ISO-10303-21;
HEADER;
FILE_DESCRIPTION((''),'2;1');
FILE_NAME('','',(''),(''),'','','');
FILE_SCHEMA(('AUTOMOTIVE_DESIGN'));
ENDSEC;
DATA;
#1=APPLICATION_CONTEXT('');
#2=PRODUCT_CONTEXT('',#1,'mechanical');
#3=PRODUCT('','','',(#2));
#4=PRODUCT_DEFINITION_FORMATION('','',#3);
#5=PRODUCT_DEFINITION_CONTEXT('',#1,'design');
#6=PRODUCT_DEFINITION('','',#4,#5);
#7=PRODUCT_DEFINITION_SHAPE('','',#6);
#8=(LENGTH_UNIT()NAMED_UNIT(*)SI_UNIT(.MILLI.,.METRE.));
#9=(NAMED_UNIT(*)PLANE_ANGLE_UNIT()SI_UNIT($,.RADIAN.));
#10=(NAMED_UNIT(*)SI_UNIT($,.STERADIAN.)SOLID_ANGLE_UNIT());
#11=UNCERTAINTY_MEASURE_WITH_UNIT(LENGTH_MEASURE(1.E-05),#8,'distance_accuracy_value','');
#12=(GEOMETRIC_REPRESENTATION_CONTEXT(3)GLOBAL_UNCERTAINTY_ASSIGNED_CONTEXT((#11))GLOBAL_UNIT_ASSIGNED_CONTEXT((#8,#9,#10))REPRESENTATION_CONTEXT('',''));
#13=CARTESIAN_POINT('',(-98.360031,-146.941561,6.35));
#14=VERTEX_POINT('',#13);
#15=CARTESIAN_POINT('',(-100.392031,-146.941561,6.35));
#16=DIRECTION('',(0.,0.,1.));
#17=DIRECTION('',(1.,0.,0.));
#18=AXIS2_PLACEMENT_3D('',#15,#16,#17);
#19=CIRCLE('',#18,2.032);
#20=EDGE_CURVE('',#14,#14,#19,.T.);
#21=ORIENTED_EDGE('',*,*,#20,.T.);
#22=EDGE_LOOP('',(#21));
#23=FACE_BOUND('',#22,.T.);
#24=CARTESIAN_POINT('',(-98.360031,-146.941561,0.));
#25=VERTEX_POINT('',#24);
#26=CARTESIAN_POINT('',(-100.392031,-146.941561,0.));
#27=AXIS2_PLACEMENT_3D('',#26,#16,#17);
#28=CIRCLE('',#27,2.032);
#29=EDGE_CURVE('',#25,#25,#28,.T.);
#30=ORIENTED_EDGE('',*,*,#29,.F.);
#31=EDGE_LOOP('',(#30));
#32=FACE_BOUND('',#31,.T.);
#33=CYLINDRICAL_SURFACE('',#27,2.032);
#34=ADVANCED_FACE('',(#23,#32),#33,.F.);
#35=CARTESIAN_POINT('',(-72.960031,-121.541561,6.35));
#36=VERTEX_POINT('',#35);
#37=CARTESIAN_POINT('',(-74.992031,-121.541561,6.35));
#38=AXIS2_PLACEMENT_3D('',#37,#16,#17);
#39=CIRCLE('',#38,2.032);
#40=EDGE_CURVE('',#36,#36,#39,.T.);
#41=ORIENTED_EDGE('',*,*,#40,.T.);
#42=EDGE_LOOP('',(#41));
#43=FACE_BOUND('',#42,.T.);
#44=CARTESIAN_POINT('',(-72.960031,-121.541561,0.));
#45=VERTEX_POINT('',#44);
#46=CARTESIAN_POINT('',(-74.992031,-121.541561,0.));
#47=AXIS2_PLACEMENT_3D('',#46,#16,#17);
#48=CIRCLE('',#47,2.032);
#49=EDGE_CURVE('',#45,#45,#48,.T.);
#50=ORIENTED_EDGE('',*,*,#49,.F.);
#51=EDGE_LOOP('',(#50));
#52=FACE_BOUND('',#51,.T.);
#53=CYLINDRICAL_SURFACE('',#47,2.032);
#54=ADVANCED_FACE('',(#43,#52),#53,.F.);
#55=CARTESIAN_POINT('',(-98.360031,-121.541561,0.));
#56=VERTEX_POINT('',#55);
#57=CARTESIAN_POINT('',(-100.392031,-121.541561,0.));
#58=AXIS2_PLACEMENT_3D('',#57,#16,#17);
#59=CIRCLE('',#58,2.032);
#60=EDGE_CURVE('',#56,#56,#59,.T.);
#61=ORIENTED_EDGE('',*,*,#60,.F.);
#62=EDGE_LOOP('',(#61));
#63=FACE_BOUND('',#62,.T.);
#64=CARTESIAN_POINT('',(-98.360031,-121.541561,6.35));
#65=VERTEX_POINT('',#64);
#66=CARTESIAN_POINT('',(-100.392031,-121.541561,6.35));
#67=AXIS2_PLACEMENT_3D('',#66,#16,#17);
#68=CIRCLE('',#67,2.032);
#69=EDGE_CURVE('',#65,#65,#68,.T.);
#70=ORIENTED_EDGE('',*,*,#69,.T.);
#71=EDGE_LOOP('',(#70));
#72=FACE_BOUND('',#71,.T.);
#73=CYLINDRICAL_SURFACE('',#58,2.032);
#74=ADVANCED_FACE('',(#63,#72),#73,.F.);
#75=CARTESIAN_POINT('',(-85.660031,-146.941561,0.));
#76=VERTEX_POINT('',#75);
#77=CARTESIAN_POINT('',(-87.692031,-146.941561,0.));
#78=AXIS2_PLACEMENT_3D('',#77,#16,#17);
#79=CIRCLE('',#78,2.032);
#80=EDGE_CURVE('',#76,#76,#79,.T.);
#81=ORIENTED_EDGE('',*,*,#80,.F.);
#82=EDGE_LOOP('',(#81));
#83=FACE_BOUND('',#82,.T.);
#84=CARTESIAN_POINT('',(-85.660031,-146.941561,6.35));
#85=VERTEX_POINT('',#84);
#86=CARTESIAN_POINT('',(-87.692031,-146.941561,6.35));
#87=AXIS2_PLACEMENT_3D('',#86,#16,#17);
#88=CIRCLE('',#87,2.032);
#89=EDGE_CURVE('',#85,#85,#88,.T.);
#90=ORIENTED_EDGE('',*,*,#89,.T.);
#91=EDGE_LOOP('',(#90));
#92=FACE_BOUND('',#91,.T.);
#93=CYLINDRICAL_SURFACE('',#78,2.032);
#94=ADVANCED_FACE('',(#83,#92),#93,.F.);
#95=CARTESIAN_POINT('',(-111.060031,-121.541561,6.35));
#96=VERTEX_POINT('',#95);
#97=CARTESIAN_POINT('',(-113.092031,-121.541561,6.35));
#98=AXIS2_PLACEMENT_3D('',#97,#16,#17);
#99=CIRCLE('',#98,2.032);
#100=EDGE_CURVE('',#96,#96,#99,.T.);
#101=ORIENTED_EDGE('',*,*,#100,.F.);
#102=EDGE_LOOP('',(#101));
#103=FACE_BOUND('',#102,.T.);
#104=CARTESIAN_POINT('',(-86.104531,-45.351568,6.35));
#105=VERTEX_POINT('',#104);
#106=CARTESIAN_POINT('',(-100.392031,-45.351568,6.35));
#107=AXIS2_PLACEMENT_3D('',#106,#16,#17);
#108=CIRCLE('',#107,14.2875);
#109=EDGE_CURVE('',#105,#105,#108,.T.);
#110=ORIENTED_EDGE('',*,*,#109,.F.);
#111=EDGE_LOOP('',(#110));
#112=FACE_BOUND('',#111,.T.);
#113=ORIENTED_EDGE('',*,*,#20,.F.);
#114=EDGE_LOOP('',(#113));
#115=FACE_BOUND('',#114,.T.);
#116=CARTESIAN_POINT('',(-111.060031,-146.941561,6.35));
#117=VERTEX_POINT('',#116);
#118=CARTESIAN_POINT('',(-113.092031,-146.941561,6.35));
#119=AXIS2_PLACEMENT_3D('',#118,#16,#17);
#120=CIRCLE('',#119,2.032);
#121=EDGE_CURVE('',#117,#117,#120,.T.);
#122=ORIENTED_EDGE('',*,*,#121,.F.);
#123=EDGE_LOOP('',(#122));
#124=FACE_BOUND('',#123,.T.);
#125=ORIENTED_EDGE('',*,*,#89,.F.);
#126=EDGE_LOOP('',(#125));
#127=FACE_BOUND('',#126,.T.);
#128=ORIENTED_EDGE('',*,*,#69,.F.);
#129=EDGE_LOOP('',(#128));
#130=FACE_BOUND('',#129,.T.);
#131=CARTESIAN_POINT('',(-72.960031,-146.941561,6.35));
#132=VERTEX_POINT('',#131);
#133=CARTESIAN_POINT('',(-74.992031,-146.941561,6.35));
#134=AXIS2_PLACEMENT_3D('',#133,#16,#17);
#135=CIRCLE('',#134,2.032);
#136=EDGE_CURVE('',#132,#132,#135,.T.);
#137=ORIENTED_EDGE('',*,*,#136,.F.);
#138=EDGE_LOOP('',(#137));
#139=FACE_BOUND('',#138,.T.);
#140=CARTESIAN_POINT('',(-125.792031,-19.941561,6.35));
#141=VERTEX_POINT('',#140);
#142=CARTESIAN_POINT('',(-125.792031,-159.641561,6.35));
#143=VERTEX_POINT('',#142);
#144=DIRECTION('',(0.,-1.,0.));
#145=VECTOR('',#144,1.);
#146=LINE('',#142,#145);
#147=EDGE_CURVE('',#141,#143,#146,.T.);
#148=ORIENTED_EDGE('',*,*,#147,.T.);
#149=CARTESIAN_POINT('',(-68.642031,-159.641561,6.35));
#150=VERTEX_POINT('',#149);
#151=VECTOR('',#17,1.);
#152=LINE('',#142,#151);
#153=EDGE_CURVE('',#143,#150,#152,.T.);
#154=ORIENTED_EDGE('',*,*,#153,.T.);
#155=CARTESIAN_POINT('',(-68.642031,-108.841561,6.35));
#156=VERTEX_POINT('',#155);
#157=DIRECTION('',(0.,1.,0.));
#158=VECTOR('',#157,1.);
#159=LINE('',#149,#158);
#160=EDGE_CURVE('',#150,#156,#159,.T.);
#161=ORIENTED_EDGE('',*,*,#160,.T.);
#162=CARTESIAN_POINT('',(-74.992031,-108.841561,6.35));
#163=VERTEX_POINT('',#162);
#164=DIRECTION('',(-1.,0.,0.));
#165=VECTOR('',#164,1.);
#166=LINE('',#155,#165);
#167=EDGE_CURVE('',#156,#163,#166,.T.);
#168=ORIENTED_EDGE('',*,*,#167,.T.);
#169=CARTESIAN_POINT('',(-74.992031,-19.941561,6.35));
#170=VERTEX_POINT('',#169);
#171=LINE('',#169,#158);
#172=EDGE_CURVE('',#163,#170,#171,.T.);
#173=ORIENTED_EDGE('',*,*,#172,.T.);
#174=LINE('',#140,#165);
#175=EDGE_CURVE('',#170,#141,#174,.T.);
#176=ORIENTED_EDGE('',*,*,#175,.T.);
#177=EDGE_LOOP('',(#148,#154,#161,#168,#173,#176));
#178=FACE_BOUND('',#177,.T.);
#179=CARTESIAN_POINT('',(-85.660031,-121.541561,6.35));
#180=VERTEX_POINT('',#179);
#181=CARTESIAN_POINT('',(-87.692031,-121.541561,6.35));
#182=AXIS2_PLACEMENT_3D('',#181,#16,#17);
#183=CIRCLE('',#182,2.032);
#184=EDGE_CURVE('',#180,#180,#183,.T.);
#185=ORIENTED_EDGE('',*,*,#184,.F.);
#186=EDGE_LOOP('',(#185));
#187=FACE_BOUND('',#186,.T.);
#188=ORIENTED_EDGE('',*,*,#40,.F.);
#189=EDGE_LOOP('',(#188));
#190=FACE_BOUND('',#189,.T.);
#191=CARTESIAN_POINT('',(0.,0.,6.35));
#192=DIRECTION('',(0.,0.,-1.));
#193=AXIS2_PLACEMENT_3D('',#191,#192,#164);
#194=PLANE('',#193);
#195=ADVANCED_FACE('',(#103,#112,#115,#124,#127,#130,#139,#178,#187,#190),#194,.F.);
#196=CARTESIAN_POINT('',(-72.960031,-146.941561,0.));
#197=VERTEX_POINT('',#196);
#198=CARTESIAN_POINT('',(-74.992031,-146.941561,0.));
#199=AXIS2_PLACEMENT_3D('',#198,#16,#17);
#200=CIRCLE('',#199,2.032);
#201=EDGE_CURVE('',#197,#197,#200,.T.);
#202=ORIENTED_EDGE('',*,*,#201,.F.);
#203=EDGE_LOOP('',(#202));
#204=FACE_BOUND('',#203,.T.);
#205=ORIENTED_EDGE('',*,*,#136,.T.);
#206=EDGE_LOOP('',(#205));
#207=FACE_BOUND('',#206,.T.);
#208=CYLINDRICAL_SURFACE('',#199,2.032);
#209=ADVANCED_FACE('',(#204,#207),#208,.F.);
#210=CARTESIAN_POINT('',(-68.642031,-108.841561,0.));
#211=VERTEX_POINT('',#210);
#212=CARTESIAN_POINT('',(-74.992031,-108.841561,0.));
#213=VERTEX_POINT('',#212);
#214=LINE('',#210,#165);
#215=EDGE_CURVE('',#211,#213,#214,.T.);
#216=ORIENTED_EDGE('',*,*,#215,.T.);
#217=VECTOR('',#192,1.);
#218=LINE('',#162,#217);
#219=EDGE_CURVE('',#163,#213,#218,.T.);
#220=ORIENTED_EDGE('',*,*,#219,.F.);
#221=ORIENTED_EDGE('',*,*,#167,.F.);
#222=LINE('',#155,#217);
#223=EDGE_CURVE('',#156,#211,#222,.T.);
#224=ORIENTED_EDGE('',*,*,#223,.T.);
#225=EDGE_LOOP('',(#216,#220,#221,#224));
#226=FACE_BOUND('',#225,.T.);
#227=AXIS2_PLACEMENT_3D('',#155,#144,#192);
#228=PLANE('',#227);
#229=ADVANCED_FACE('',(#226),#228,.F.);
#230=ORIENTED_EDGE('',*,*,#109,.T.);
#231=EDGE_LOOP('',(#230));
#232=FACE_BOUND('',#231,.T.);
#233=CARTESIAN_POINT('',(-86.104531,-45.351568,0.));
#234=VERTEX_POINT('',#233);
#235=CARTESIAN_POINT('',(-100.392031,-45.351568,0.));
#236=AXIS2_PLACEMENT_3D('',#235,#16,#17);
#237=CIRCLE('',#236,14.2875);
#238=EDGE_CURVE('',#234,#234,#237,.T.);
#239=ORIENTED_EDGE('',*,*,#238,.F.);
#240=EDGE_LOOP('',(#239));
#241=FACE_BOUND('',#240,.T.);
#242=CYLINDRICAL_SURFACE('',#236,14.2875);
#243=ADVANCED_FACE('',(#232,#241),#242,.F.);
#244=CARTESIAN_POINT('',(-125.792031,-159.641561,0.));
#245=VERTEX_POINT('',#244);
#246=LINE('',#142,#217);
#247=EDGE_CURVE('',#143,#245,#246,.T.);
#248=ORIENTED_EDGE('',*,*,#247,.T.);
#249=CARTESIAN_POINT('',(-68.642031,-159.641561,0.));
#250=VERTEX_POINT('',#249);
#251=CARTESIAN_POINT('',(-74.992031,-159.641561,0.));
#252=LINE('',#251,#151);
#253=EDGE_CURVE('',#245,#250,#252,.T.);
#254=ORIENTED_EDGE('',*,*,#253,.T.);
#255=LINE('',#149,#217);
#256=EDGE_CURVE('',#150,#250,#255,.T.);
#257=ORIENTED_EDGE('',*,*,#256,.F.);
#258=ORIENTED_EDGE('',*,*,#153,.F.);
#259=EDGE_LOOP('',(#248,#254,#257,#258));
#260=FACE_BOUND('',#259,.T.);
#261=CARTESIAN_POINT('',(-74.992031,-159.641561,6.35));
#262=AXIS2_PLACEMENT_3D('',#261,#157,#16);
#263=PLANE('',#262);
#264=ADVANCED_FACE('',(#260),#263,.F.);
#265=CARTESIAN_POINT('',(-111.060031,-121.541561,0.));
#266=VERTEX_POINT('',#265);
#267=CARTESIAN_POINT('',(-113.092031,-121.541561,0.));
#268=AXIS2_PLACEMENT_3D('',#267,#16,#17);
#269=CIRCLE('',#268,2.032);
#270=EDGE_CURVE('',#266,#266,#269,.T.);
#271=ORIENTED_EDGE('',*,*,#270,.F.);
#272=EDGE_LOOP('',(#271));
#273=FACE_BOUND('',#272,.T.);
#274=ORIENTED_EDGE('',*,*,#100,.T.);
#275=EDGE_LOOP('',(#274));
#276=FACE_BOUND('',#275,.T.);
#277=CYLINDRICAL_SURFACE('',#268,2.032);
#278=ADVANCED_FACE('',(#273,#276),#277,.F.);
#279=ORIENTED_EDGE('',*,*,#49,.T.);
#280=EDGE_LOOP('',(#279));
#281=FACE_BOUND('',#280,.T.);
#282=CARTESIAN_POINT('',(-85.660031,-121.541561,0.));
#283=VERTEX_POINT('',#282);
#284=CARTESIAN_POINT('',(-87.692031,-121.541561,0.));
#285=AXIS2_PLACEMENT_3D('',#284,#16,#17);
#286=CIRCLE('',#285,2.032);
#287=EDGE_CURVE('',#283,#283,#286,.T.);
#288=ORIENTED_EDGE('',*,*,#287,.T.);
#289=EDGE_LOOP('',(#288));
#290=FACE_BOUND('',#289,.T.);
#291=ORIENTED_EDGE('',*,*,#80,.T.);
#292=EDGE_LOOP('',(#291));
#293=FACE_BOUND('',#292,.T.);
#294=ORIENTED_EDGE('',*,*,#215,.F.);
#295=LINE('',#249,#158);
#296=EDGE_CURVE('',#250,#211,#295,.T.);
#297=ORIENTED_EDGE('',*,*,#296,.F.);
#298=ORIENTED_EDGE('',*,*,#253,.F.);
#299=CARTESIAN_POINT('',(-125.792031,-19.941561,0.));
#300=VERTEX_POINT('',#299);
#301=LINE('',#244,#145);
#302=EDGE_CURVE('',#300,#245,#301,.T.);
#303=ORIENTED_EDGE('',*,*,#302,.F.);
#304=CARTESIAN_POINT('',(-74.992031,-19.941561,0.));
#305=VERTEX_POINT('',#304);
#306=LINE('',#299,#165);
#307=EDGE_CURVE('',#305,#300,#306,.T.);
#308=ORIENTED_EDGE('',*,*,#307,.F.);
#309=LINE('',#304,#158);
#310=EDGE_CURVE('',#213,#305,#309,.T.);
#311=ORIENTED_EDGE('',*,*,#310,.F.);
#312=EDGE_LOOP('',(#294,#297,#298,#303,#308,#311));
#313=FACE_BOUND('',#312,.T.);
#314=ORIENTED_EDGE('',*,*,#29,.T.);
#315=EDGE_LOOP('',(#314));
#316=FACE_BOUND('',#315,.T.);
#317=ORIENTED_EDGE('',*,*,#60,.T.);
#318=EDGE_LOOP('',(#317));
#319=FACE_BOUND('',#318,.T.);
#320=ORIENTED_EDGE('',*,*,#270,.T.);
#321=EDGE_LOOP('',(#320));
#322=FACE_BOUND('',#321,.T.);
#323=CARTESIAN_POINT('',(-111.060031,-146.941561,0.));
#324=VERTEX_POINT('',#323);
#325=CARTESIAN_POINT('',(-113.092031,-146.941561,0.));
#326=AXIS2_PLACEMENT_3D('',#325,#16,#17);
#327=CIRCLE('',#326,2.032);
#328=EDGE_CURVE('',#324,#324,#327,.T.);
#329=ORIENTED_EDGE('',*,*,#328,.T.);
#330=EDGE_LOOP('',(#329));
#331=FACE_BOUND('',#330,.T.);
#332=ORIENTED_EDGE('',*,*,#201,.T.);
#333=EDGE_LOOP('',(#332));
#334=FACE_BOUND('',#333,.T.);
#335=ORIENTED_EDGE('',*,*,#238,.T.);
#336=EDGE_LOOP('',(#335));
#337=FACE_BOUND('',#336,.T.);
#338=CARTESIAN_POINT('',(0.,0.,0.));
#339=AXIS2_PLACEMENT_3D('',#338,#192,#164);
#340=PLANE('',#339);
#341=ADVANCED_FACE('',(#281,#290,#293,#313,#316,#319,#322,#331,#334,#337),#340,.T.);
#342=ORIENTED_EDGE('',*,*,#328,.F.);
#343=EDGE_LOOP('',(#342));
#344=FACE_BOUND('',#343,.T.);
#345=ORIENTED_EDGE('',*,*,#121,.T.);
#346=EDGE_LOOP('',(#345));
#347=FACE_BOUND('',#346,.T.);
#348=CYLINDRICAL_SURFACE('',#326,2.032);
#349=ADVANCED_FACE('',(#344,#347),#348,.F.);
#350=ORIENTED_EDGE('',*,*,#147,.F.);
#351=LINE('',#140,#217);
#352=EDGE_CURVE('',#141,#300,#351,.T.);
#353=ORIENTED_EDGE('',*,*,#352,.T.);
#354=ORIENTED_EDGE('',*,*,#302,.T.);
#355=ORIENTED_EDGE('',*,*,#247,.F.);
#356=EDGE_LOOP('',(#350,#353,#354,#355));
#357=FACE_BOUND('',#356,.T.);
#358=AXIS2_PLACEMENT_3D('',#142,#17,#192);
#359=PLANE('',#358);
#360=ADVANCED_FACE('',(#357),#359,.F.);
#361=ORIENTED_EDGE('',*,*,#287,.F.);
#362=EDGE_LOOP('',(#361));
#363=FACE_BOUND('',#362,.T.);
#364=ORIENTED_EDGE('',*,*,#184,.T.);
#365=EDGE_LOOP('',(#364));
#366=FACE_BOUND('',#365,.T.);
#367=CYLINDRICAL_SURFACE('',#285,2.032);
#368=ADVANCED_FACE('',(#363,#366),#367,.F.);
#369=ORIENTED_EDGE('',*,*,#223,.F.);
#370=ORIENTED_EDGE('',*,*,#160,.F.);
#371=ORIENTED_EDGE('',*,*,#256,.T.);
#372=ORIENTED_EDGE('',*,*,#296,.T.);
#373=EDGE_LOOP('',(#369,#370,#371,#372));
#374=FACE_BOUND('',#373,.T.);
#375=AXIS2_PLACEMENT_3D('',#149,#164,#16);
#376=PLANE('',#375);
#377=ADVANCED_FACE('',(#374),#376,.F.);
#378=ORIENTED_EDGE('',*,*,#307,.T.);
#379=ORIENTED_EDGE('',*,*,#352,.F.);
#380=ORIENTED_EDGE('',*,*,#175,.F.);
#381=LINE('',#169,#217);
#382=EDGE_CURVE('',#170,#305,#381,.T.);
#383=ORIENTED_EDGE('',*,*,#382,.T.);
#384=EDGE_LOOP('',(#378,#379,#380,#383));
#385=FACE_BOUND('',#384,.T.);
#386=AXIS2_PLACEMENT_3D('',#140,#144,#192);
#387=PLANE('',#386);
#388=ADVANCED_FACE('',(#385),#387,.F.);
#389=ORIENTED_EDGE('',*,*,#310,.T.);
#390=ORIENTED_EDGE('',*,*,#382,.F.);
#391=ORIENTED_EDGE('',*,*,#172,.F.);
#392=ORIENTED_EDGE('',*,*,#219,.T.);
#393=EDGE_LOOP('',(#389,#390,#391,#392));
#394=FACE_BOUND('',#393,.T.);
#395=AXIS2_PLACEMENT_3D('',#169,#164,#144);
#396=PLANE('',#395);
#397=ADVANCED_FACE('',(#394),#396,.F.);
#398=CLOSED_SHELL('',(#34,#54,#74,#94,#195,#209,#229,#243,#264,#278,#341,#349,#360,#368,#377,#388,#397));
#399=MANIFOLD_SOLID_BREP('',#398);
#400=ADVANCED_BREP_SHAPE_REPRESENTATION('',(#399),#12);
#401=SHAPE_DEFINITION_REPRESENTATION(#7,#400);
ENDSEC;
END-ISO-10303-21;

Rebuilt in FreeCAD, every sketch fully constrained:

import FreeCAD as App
import Part
import Sketcher
from FreeCAD import Vector
Q = App.Units.Quantity


def add_polygon(sketch, points):
    """Adds a closed chain of lines whose ends are joined by coincident constraints."""
    first, n = sketch.GeometryCount, len(points)
    for a, b in zip(points, points[1:] + points[:1]):
        sketch.addGeometry(Part.LineSegment(App.Vector(*a, 0), App.Vector(*b, 0)), False)
    for i in range(n):
        sketch.addConstraint(Sketcher.Constraint("Coincident", first + i, 2, first + (i + 1) % n, 1))

doc = App.newDocument("Part")
body = doc.addObject("PartDesign::Body", "Body")

# Sketch on XY plane
sketch1 = doc.addObject("Sketcher::SketchObject", "Sketch")
body.addObject(sketch1)
sketch1.AttachmentSupport = (doc.XY_Plane, [""])
sketch1.MapMode = "FlatFace"
add_polygon(sketch1, [(-126, -160), (-69, -160), (-69, -109), (-75, -109), (-75, -20), (-126, -20)])  # lines 0-5
sketch1.addConstraint([
    Sketcher.Constraint("Horizontal", 0),
    Sketcher.Constraint("Vertical", 1),
    Sketcher.Constraint("Horizontal", 2),
    Sketcher.Constraint("Vertical", 3),
    Sketcher.Constraint("Horizontal", 4),
    Sketcher.Constraint("Vertical", 5),
    Sketcher.Constraint("Equal", 4, 1),
    Sketcher.Constraint("DistanceX", 4, 2, 4, 1, Q("2 in")),
    Sketcher.Constraint("DistanceY", 3, 1, 3, 2, Q("3.5 in")),
    Sketcher.Constraint("DistanceX", 0, 1, 0, 2, Q("2.25 in")),
    Sketcher.Constraint("DistanceX", 0, 2, -1, 1, 68.642031),
    Sketcher.Constraint("DistanceY", 0, 2, -1, 1, 159.641561),
])
pad1 = doc.addObject("PartDesign::Pad", "Pad")
body.addObject(pad1)
pad1.Profile = sketch1
pad1.Length = Q("0.25 in")

# Sketch on XY plane
sketch2 = doc.addObject("Sketcher::SketchObject", "Sketch001")
body.addObject(sketch2)
sketch2.AttachmentSupport = (doc.XY_Plane, [""])
sketch2.MapMode = "FlatFace"
sketch2.AttachmentOffset = App.Placement(Vector(0, 0, 0.25 * 25.4), App.Rotation())
sketch2.addGeometry([
    Part.Circle(Vector(-100.4, -45.4, 0), Vector(0, 0, 1), 14.3),  # 0
    Part.Circle(Vector(-87.7, -146.9, 0), Vector(0, 0, 1), 2),  # 1
    Part.Circle(Vector(-113.1, -146.9, 0), Vector(0, 0, 1), 2),  # 2
    Part.Circle(Vector(-100.4, -146.9, 0), Vector(0, 0, 1), 2),  # 3
    Part.Circle(Vector(-75, -146.9, 0), Vector(0, 0, 1), 2),  # 4
    Part.Circle(Vector(-113.1, -121.5, 0), Vector(0, 0, 1), 2),  # 5
    Part.Circle(Vector(-87.7, -121.5, 0), Vector(0, 0, 1), 2),  # 6
    Part.Circle(Vector(-75, -121.5, 0), Vector(0, 0, 1), 2),  # 7
    Part.Circle(Vector(-100.4, -121.5, 0), Vector(0, 0, 1), 2),  # 8
], False)
sketch2.addConstraint([
    Sketcher.Constraint("Equal", 1, 2),
    Sketcher.Constraint("Equal", 2, 3),
    Sketcher.Constraint("Equal", 3, 4),
    Sketcher.Constraint("Equal", 4, 5),
    Sketcher.Constraint("Equal", 5, 6),
    Sketcher.Constraint("Equal", 6, 7),
    Sketcher.Constraint("Equal", 7, 8),
    Sketcher.Constraint("Horizontal", 1, 3, 2, 3),
    Sketcher.Constraint("Horizontal", 2, 3, 3, 3),
    Sketcher.Constraint("Horizontal", 3, 3, 4, 3),
    Sketcher.Constraint("Horizontal", 5, 3, 6, 3),
    Sketcher.Constraint("Horizontal", 6, 3, 7, 3),
    Sketcher.Constraint("Horizontal", 7, 3, 8, 3),
    Sketcher.Constraint("Vertical", 0, 3, 3, 3),
    Sketcher.Constraint("Vertical", 2, 3, 5, 3),
    Sketcher.Constraint("Vertical", 1, 3, 6, 3),
    Sketcher.Constraint("Vertical", 4, 3, 7, 3),
    Sketcher.Constraint("Vertical", 3, 3, 8, 3),
    Sketcher.Constraint("Diameter", 1, Q("0.16 in")),
    Sketcher.Constraint("Diameter", 0, Q("1.125 in")),
    Sketcher.Constraint("DistanceX", 2, 3, 1, 3, Q("1 in")),
    Sketcher.Constraint("DistanceX", 3, 3, 4, 3, Q("1 in")),
    Sketcher.Constraint("DistanceY", 2, 3, 5, 3, Q("1 in")),
    Sketcher.Constraint("DistanceX", 0, 3, 1, 3, Q("0.5 in")),
    Sketcher.Constraint("DistanceX", 0, 3, -1, 1, 100.392031),
    Sketcher.Constraint("DistanceY", 1, 3, -1, 1, 146.941561),
    Sketcher.Constraint("DistanceY", 0, 3, -1, 1, 45.351568),
])
pocket1 = doc.addObject("PartDesign::Pocket", "Pocket")
body.addObject(pocket1)
pocket1.Profile = sketch2
pocket1.Length = Q("0.25 in")

doc.recompute()
